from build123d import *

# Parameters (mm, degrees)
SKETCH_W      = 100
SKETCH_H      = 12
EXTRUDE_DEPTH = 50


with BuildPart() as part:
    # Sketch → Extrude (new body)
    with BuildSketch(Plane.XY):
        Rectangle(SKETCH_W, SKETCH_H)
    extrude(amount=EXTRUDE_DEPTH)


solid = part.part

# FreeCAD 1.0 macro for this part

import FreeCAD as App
import Part
import Sketcher
from FreeCAD import Vector

doc = App.newDocument("Part")
body = doc.addObject("PartDesign::Body", "Body")

# Sketch on XY plane
sketch1 = body.newObject("Sketcher::SketchObject", "Sketch")
sketch1.AttachmentSupport = (doc.getObject("XY_Plane"), [""])
sketch1.MapMode = "FlatFace"
sketch1.addGeometry(Part.LineSegment(Vector(-50, 6, 0), Vector(-50, -6, 0)), False)
sketch1.addGeometry(Part.LineSegment(Vector(-50, -6, 0), Vector(50, -6, 0)), False)
sketch1.addGeometry(Part.LineSegment(Vector(50, -6, 0), Vector(50, 6, 0)), False)
sketch1.addGeometry(Part.LineSegment(Vector(50, 6, 0), Vector(-50, 6, 0)), False)
sketch1.addConstraint(Sketcher.Constraint("Coincident", 0, 2, 1, 1))
sketch1.addConstraint(Sketcher.Constraint("Coincident", 1, 2, 2, 1))
sketch1.addConstraint(Sketcher.Constraint("Coincident", 2, 2, 3, 1))
sketch1.addConstraint(Sketcher.Constraint("Coincident", 3, 2, 0, 1))
sketch1.addConstraint(Sketcher.Constraint("Vertical", 0))
sketch1.addConstraint(Sketcher.Constraint("Horizontal", 1))
sketch1.addConstraint(Sketcher.Constraint("Vertical", 2))
sketch1.addConstraint(Sketcher.Constraint("Horizontal", 3))
sketch1.addConstraint(Sketcher.Constraint("Symmetric", 0, 2, 2, 2, -1, 1))
sketch1.addConstraint(Sketcher.Constraint("DistanceX", 1, 1, 1, 2, 100.0))
sketch1.addConstraint(Sketcher.Constraint("DistanceY", 0, 2, 0, 1, 12.0))
pad1 = body.newObject("PartDesign::Pad", "Pad")
pad1.Profile = sketch1
pad1.Length = 50

doc.recompute()
